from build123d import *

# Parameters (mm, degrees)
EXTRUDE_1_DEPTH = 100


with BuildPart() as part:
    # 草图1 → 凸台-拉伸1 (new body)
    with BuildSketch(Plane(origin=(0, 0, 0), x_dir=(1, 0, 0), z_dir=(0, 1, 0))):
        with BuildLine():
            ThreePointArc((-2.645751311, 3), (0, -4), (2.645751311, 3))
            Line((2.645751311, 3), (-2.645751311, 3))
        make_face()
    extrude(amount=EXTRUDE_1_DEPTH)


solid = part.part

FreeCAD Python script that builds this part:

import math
import FreeCAD as App
import Part
import Sketcher

doc = App.newDocument("Part")
body = doc.addObject("PartDesign::Body", "Body")

sketch1 = body.newObject("Sketcher::SketchObject", "Sketch")
sketch1.AttachmentSupport = (doc.getObject("XZ_Plane"), [""])
sketch1.MapMode = "FlatFace"
sketch1.addGeometry(Part.ArcOfCircle(Part.Circle(App.Vector(0, 0, 0), App.Vector(0, 0, 1), 4), math.radians(-49), math.radians(229)), False)
sketch1.addGeometry(Part.LineSegment(App.Vector(2.6, -3, 0), App.Vector(-2.6, -3, 0)), False)
sketch1.addConstraint(Sketcher.Constraint("Coincident", 0, 1, 1, 1))
sketch1.addConstraint(Sketcher.Constraint("Coincident", 1, 2, 0, 2))
sketch1.addConstraint(Sketcher.Constraint("Horizontal", 1))
sketch1.addConstraint(Sketcher.Constraint("Coincident", 0, 3, -1, 1))
sketch1.addConstraint(Sketcher.Constraint("Radius", 0, 4.0))
sketch1.addConstraint(Sketcher.Constraint("DistanceY", 0, 1, -1, 1, 3.0))
pad1 = body.newObject("PartDesign::Pad", "Pad")
pad1.Profile = sketch1
pad1.Length = 100
pad1.Reversed = True

doc.recompute()
